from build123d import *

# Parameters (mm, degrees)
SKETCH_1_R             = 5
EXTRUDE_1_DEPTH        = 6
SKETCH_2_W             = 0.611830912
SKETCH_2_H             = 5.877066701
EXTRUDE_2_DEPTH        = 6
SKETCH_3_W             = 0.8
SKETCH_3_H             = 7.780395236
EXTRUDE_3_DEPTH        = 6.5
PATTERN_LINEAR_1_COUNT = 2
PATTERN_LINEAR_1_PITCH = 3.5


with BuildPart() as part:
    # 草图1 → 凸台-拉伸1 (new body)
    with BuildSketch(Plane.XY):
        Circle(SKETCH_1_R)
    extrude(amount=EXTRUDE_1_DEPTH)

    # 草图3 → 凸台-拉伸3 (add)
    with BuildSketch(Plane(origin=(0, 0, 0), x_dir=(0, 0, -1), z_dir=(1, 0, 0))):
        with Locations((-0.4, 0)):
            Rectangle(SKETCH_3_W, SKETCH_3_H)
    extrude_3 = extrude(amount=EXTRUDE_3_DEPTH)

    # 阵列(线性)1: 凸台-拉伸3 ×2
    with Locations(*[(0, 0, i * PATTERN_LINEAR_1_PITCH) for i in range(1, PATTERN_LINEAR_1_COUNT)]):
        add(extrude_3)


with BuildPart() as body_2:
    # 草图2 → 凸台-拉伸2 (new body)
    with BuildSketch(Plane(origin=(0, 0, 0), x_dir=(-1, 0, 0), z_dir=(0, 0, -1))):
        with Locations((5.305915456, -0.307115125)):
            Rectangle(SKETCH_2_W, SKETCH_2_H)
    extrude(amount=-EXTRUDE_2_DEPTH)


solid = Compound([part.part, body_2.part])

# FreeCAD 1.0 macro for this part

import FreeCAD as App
import Part
import Sketcher

V = App.Vector


def add_polygon(sketch, points):
    """Adds a closed chain of lines whose ends are joined by coincident constraints."""
    first, n = sketch.GeometryCount, len(points)
    for a, b in zip(points, points[1:] + points[:1]):
        sketch.addGeometry(Part.LineSegment(App.Vector(*a, 0), App.Vector(*b, 0)), False)
    for i in range(n):
        sketch.addConstraint(Sketcher.Constraint("Coincident", first + i, 2, first + (i + 1) % n, 1))

doc = App.newDocument("Part")
body = doc.addObject("PartDesign::Body", "Body")

sketch1 = doc.addObject("Sketcher::SketchObject", "Sketch")
body.addObject(sketch1)
sketch1.AttachmentSupport = (doc.XY_Plane, [""])
sketch1.MapMode = "FlatFace"
sketch1.addGeometry(Part.Circle(V(0, 0, 0), V(0, 0, 1), 5), False)
sketch1.addConstraint([
    Sketcher.Constraint("Coincident", 0, 3, -1, 1),
    Sketcher.Constraint("Diameter", 0, 10.0),
])
pad1 = doc.addObject("PartDesign::Pad", "Pad")
body.addObject(pad1)
pad1.Profile = sketch1
pad1.Length = 6

sketch2 = doc.addObject("Sketcher::SketchObject", "Sketch001")
body.addObject(sketch2)
sketch2.AttachmentSupport = (doc.YZ_Plane, [""])
sketch2.MapMode = "FlatFace"
add_polygon(sketch2, [(3.890198, 0.8), (-3.890198, 0.8), (-3.890198, 0), (3.890198, 0)])
sketch2.addConstraint([
    Sketcher.Constraint("Horizontal", 0),
    Sketcher.Constraint("Vertical", 1),
    Sketcher.Constraint("Horizontal", 2),
    Sketcher.Constraint("Vertical", 3),
    Sketcher.Constraint("Symmetric", 1, 2, 2, 2, -1, 1),
    Sketcher.Constraint("DistanceY", 1, 2, 1, 1, 0.8),
    Sketcher.Constraint("DistanceX", 0, 2, 0, 1, 7.780395),
])
pad2 = doc.addObject("PartDesign::Pad", "Pad001")
body.addObject(pad2)
pad2.Profile = sketch2
pad2.Length = 6.5
doc.recompute()

linearpattern = doc.addObject("PartDesign::LinearPattern", "LinearPattern")
body.addObject(linearpattern)
linearpattern.Originals = [pad2]
linearpattern.Direction = (doc.Z_Axis, [""])
linearpattern.Mode = "offset"
linearpattern.Offset = 3.5
linearpattern.Occurrences = 2
body.Tip = linearpattern
body2 = doc.addObject("PartDesign::Body", "Body001")

sketch3 = doc.addObject("Sketcher::SketchObject", "Sketch002")
body2.addObject(sketch3)
sketch3.AttachmentSupport = (doc.getObject("XY_Plane001"), [""])
sketch3.MapMode = "FlatFace"
add_polygon(sketch3, [(-5, 2.631418), (-5, -3.245648), (-5.611831, -3.245648), (-5.611831, 2.631418)])
sketch3.addConstraint([
    Sketcher.Constraint("Vertical", 0),
    Sketcher.Constraint("Horizontal", 1),
    Sketcher.Constraint("Vertical", 2),
    Sketcher.Constraint("Horizontal", 3),
    Sketcher.Constraint("DistanceX", 0, 2, -1, 1, 5.0),
    Sketcher.Constraint("DistanceX", 1, 2, 1, 1, 0.611831),
    Sketcher.Constraint("DistanceY", 0, 2, 0, 1, 5.877067),
    Sketcher.Constraint("DistanceY", 0, 2, -1, 1, 3.245648),
])
pad3 = doc.addObject("PartDesign::Pad", "Pad002")
body2.addObject(pad3)
pad3.Profile = sketch3
pad3.Length = 6

doc.recompute()
